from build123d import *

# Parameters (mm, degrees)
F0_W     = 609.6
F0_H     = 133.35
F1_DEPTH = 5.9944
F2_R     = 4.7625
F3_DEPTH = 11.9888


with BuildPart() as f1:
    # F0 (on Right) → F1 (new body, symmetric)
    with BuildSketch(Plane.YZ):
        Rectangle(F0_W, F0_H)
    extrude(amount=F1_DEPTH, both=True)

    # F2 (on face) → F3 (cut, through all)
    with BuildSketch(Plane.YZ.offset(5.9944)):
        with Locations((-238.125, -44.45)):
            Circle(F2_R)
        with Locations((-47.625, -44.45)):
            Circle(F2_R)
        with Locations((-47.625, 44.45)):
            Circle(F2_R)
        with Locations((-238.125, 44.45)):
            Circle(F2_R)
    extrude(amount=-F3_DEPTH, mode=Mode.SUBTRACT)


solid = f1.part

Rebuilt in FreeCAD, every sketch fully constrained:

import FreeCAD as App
import Part
import Sketcher
Q = App.Units.Quantity


def add_polygon(sketch, points):
    """Adds a closed chain of lines whose ends are joined by coincident constraints."""
    first, n = sketch.GeometryCount, len(points)
    for a, b in zip(points, points[1:] + points[:1]):
        sketch.addGeometry(Part.LineSegment(App.Vector(*a, 0), App.Vector(*b, 0)), False)
    for i in range(n):
        sketch.addConstraint(Sketcher.Constraint("Coincident", first + i, 2, first + (i + 1) % n, 1))

doc = App.newDocument("Part")
body = doc.addObject("PartDesign::Body", "Body")

# Sketch on YZ plane
sketch1 = doc.addObject("Sketcher::SketchObject", "Sketch")
body.addObject(sketch1)
sketch1.AttachmentSupport = (doc.YZ_Plane, [""])
sketch1.MapMode = "FlatFace"
add_polygon(sketch1, [(-305, 67), (-305, -67), (305, -67), (305, 67)])  # lines 0-3
sketch1.addConstraint(Sketcher.Constraint("Vertical", 0))
sketch1.addConstraint(Sketcher.Constraint("Horizontal", 1))
sketch1.addConstraint(Sketcher.Constraint("Vertical", 2))
sketch1.addConstraint(Sketcher.Constraint("Horizontal", 3))
sketch1.addConstraint(Sketcher.Constraint("Symmetric", 0, 2, 2, 2, -1, 1))
sketch1.addConstraint(Sketcher.Constraint("DistanceX", 1, 1, 1, 2, Q("24 in")))
sketch1.addConstraint(Sketcher.Constraint("DistanceY", 0, 2, 0, 1, Q("5.25 in")))
pad1 = doc.addObject("PartDesign::Pad", "Pad")
body.addObject(pad1)
pad1.Profile = sketch1
pad1.Length = Q("0.472 in")
pad1.Midplane = True

# Sketch on YZ plane
sketch2 = doc.addObject("Sketcher::SketchObject", "Sketch001")
body.addObject(sketch2)
sketch2.AttachmentSupport = (doc.YZ_Plane, [""])
sketch2.MapMode = "FlatFace"
sketch2.AttachmentOffset = App.Placement(App.Vector(0, 0, 0.236 * 25.4), App.Rotation())
sketch2.addGeometry(Part.Circle(App.Vector(-238.1, -44.5, 0), App.Vector(0, 0, 1), 4.8), False)
sketch2.addGeometry(Part.Circle(App.Vector(-47.6, -44.5, 0), App.Vector(0, 0, 1), 4.8), False)
sketch2.addGeometry(Part.Circle(App.Vector(-47.6, 44.5, 0), App.Vector(0, 0, 1), 4.8), False)
sketch2.addGeometry(Part.Circle(App.Vector(-238.1, 44.5, 0), App.Vector(0, 0, 1), 4.8), False)
sketch2.addConstraint(Sketcher.Constraint("Equal", 0, 1))
sketch2.addConstraint(Sketcher.Constraint("Equal", 1, 2))
sketch2.addConstraint(Sketcher.Constraint("Equal", 2, 3))
sketch2.addConstraint(Sketcher.Constraint("Symmetric", 1, 3, 2, 3, -1))
sketch2.addConstraint(Sketcher.Constraint("Symmetric", 0, 3, 3, 3, -1))
sketch2.addConstraint(Sketcher.Constraint("Horizontal", 0, 3, 1, 3))
sketch2.addConstraint(Sketcher.Constraint("Diameter", 0, Q("0.375 in")))
sketch2.addConstraint(Sketcher.Constraint("DistanceX", 0, 3, 1, 3, Q("7.5 in")))
sketch2.addConstraint(Sketcher.Constraint("DistanceY", 1, 3, 2, 3, Q("3.5 in")))
sketch2.addConstraint(Sketcher.Constraint("DistanceX", 0, 3, -1, 1, Q("9.375 in")))
pocket1 = doc.addObject("PartDesign::Pocket", "Pocket")
body.addObject(pocket1)
pocket1.Profile = sketch2
pocket1.Type = "ThroughAll"

doc.recompute()
